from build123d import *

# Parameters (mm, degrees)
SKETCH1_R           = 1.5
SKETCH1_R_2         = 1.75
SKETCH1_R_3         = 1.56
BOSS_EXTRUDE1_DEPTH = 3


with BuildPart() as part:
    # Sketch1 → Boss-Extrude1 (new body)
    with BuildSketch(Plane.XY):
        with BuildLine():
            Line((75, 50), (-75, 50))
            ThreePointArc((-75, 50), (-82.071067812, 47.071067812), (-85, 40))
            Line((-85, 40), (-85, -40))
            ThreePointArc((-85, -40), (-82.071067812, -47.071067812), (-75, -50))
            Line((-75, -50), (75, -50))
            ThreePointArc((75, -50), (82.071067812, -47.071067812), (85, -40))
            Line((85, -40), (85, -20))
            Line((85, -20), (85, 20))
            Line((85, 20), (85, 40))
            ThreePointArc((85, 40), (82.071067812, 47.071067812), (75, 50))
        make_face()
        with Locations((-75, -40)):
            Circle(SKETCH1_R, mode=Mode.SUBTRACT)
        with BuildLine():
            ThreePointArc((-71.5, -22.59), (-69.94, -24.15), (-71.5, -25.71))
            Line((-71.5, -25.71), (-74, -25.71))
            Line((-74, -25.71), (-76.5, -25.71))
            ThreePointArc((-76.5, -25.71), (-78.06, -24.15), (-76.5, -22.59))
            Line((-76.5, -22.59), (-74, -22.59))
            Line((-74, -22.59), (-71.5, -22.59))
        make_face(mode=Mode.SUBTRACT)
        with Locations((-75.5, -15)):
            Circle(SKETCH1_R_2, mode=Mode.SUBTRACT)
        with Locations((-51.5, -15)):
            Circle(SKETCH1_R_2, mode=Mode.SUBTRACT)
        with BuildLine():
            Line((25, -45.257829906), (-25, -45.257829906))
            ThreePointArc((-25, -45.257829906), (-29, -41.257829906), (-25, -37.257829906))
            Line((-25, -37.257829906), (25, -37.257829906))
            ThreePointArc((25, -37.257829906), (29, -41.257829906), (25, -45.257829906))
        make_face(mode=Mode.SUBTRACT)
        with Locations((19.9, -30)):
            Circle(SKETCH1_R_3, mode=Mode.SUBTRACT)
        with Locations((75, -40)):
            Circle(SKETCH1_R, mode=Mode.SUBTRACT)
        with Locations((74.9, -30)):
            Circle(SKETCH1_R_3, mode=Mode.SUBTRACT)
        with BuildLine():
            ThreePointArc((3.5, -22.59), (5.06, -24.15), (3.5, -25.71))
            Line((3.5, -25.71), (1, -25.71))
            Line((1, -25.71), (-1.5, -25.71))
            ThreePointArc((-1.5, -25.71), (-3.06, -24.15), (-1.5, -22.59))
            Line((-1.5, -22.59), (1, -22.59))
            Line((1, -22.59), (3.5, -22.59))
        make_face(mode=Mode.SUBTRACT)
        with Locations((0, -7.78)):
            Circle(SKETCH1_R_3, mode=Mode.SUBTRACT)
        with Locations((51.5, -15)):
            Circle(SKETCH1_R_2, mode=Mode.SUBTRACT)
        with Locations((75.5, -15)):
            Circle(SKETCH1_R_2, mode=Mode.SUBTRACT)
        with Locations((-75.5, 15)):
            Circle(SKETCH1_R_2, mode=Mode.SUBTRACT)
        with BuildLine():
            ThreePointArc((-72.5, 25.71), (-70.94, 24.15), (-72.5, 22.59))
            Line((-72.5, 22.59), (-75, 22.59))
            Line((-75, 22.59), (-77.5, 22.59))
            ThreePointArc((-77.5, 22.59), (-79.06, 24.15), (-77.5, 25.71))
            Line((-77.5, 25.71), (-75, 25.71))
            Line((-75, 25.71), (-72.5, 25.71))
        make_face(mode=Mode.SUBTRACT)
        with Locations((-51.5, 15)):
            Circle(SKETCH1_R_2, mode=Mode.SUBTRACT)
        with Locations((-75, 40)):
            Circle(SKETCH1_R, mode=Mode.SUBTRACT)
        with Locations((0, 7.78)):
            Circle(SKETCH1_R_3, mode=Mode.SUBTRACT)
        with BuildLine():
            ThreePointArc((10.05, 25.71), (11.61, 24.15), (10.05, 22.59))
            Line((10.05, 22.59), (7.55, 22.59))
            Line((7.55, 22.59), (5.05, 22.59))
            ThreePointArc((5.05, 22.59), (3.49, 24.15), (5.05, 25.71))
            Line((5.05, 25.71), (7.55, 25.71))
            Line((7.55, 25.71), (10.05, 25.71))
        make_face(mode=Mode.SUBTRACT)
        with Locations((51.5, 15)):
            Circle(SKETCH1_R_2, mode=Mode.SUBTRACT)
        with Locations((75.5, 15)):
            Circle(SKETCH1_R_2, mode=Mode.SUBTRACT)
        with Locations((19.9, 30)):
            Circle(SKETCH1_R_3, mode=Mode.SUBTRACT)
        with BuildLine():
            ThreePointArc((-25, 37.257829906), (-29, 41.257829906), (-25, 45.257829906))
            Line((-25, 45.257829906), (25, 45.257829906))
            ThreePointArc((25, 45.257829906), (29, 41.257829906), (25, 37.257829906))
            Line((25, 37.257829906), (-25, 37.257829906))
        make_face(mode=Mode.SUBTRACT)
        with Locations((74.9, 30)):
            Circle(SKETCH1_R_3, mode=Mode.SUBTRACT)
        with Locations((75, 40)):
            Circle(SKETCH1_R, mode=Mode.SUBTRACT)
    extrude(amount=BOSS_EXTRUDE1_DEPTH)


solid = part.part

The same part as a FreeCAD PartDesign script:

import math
import FreeCAD as App
import Part
import Sketcher
from FreeCAD import Vector

doc = App.newDocument("Part")
body = doc.addObject("PartDesign::Body", "Body")

# Sketch on XY plane
sketch1 = body.newObject("Sketcher::SketchObject", "Sketch")
sketch1.AttachmentSupport = (doc.getObject("XY_Plane"), [""])
sketch1.MapMode = "FlatFace"
sketch1.addGeometry(Part.LineSegment(Vector(75, 50, 0), Vector(-75, 50, 0)), False)
sketch1.addGeometry(Part.ArcOfCircle(Part.Circle(Vector(-75, 40, 0), Vector(0, 0, 1), 10), math.radians(90), math.radians(180)), False)
sketch1.addGeometry(Part.LineSegment(Vector(-85, 40, 0), Vector(-85, -40, 0)), False)
sketch1.addGeometry(Part.ArcOfCircle(Part.Circle(Vector(-75, -40, 0), Vector(0, 0, 1), 10), math.radians(180), math.radians(270)), False)
sketch1.addGeometry(Part.LineSegment(Vector(-75, -50, 0), Vector(75, -50, 0)), False)
sketch1.addGeometry(Part.ArcOfCircle(Part.Circle(Vector(75, -40, 0), Vector(0, 0, 1), 10), math.radians(-90), math.radians(0)), False)
sketch1.addGeometry(Part.LineSegment(Vector(85, -40, 0), Vector(85, 40, 0)), False)
sketch1.addGeometry(Part.ArcOfCircle(Part.Circle(Vector(75, 40, 0), Vector(0, 0, 1), 10), math.radians(0), math.radians(90)), False)
sketch1.addGeometry(Part.Circle(Vector(-75, -40, 0), Vector(0, 0, 1), 1.5), False)
sketch1.addGeometry(Part.LineSegment(Vector(-76.5, -22.6, 0), Vector(-71.5, -22.6, 0)), False)
sketch1.addGeometry(Part.ArcOfCircle(Part.Circle(Vector(-71.5, -24.1, 0), Vector(0, 0, 1), 1.6), math.radians(-90), math.radians(90)), False)
sketch1.addGeometry(Part.LineSegment(Vector(-71.5, -25.7, 0), Vector(-76.5, -25.7, 0)), False)
sketch1.addGeometry(Part.ArcOfCircle(Part.Circle(Vector(-76.5, -24.1, 0), Vector(0, 0, 1), 1.6), math.radians(90), math.radians(270)), False)
sketch1.addGeometry(Part.Circle(Vector(-75.5, -15, 0), Vector(0, 0, 1), 1.8), False)
sketch1.addGeometry(Part.Circle(Vector(-51.5, -15, 0), Vector(0, 0, 1), 1.8), False)
sketch1.addGeometry(Part.ArcOfCircle(Part.Circle(Vector(25, -41.3, 0), Vector(0, 0, 1), 4), math.radians(-90), math.radians(90)), False)
sketch1.addGeometry(Part.LineSegment(Vector(25, -45.3, 0), Vector(-25, -45.3, 0)), False)
sketch1.addGeometry(Part.ArcOfCircle(Part.Circle(Vector(-25, -41.3, 0), Vector(0, 0, 1), 4), math.radians(90), math.radians(270)), False)
sketch1.addGeometry(Part.LineSegment(Vector(-25, -37.3, 0), Vector(25, -37.3, 0)), False)
sketch1.addGeometry(Part.LineSegment(Vector(-1.5, -22.6, 0), Vector(3.5, -22.6, 0)), False)
sketch1.addGeometry(Part.ArcOfCircle(Part.Circle(Vector(3.5, -24.1, 0), Vector(0, 0, 1), 1.6), math.radians(-90), math.radians(90)), False)
sketch1.addGeometry(Part.LineSegment(Vector(3.5, -25.7, 0), Vector(-1.5, -25.7, 0)), False)
sketch1.addGeometry(Part.ArcOfCircle(Part.Circle(Vector(-1.5, -24.1, 0), Vector(0, 0, 1), 1.6), math.radians(90), math.radians(270)), False)
sketch1.addGeometry(Part.Circle(Vector(19.9, -30, 0), Vector(0, 0, 1), 1.6), False)
sketch1.addGeometry(Part.Circle(Vector(75, -40, 0), Vector(0, 0, 1), 1.5), False)
sketch1.addGeometry(Part.Circle(Vector(74.9, -30, 0), Vector(0, 0, 1), 1.6), False)
sketch1.addGeometry(Part.Circle(Vector(0, -7.8, 0), Vector(0, 0, 1), 1.6), False)
sketch1.addGeometry(Part.Circle(Vector(51.5, -15, 0), Vector(0, 0, 1), 1.8), False)
sketch1.addGeometry(Part.Circle(Vector(75.5, -15, 0), Vector(0, 0, 1), 1.8), False)
sketch1.addGeometry(Part.Circle(Vector(-75.5, 15, 0), Vector(0, 0, 1), 1.8), False)
sketch1.addGeometry(Part.Circle(Vector(-51.5, 15, 0), Vector(0, 0, 1), 1.8), False)
sketch1.addGeometry(Part.LineSegment(Vector(-77.5, 25.7, 0), Vector(-72.5, 25.7, 0)), False)
sketch1.addGeometry(Part.ArcOfCircle(Part.Circle(Vector(-72.5, 24.1, 0), Vector(0, 0, 1), 1.6), math.radians(-90), math.radians(90)), False)
sketch1.addGeometry(Part.LineSegment(Vector(-72.5, 22.6, 0), Vector(-77.5, 22.6, 0)), False)
sketch1.addGeometry(Part.ArcOfCircle(Part.Circle(Vector(-77.5, 24.1, 0), Vector(0, 0, 1), 1.6), math.radians(90), math.radians(270)), False)
sketch1.addGeometry(Part.Circle(Vector(-75, 40, 0), Vector(0, 0, 1), 1.5), False)
sketch1.addGeometry(Part.Circle(Vector(0, 7.8, 0), Vector(0, 0, 1), 1.6), False)
sketch1.addGeometry(Part.Circle(Vector(51.5, 15, 0), Vector(0, 0, 1), 1.8), False)
sketch1.addGeometry(Part.Circle(Vector(75.5, 15, 0), Vector(0, 0, 1), 1.8), False)
sketch1.addGeometry(Part.LineSegment(Vector(5, 25.7, 0), Vector(10.1, 25.7, 0)), False)
sketch1.addGeometry(Part.ArcOfCircle(Part.Circle(Vector(10.1, 24.1, 0), Vector(0, 0, 1), 1.6), math.radians(-90), math.radians(90)), False)
sketch1.addGeometry(Part.LineSegment(Vector(10.1, 22.6, 0), Vector(5, 22.6, 0)), False)
sketch1.addGeometry(Part.ArcOfCircle(Part.Circle(Vector(5, 24.1, 0), Vector(0, 0, 1), 1.6), math.radians(90), math.radians(270)), False)
sketch1.addGeometry(Part.Circle(Vector(19.9, 30, 0), Vector(0, 0, 1), 1.6), False)
sketch1.addGeometry(Part.LineSegment(Vector(25, 37.3, 0), Vector(-25, 37.3, 0)), False)
sketch1.addGeometry(Part.ArcOfCircle(Part.Circle(Vector(-25, 41.3, 0), Vector(0, 0, 1), 4), math.radians(90), math.radians(270)), False)
sketch1.addGeometry(Part.LineSegment(Vector(-25, 45.3, 0), Vector(25, 45.3, 0)), False)
sketch1.addGeometry(Part.ArcOfCircle(Part.Circle(Vector(25, 41.3, 0), Vector(0, 0, 1), 4), math.radians(-90), math.radians(90)), False)
sketch1.addGeometry(Part.Circle(Vector(74.9, 30, 0), Vector(0, 0, 1), 1.6), False)
sketch1.addGeometry(Part.Circle(Vector(75, 40, 0), Vector(0, 0, 1), 1.5), False)
sketch1.addConstraint(Sketcher.Constraint("Tangent", 0, 2, 1, 1))
sketch1.addConstraint(Sketcher.Constraint("Tangent", 1, 2, 2, 1))
sketch1.addConstraint(Sketcher.Constraint("Tangent", 2, 2, 3, 1))
sketch1.addConstraint(Sketcher.Constraint("Tangent", 3, 2, 4, 1))
sketch1.addConstraint(Sketcher.Constraint("Tangent", 4, 2, 5, 1))
sketch1.addConstraint(Sketcher.Constraint("Tangent", 5, 2, 6, 1))
sketch1.addConstraint(Sketcher.Constraint("Tangent", 6, 2, 7, 1))
sketch1.addConstraint(Sketcher.Constraint("Tangent", 7, 2, 0, 1))
sketch1.addConstraint(Sketcher.Constraint("Tangent", 9, 2, 10, 2))
sketch1.addConstraint(Sketcher.Constraint("Tangent", 10, 1, 11, 1))
sketch1.addConstraint(Sketcher.Constraint("Tangent", 11, 2, 12, 2))
sketch1.addConstraint(Sketcher.Constraint("Tangent", 12, 1, 9, 1))
sketch1.addConstraint(Sketcher.Constraint("Tangent", 15, 1, 16, 1))
sketch1.addConstraint(Sketcher.Constraint("Tangent", 16, 2, 17, 2))
sketch1.addConstraint(Sketcher.Constraint("Tangent", 17, 1, 18, 1))
sketch1.addConstraint(Sketcher.Constraint("Tangent", 18, 2, 15, 2))
sketch1.addConstraint(Sketcher.Constraint("Tangent", 19, 2, 20, 2))
sketch1.addConstraint(Sketcher.Constraint("Tangent", 20, 1, 21, 1))
sketch1.addConstraint(Sketcher.Constraint("Tangent", 21, 2, 22, 2))
sketch1.addConstraint(Sketcher.Constraint("Tangent", 22, 1, 19, 1))
sketch1.addConstraint(Sketcher.Constraint("Tangent", 31, 2, 32, 2))
sketch1.addConstraint(Sketcher.Constraint("Tangent", 32, 1, 33, 1))
sketch1.addConstraint(Sketcher.Constraint("Tangent", 33, 2, 34, 2))
sketch1.addConstraint(Sketcher.Constraint("Tangent", 34, 1, 31, 1))
sketch1.addConstraint(Sketcher.Constraint("Tangent", 39, 2, 40, 2))
sketch1.addConstraint(Sketcher.Constraint("Tangent", 40, 1, 41, 1))
sketch1.addConstraint(Sketcher.Constraint("Tangent", 41, 2, 42, 2))
sketch1.addConstraint(Sketcher.Constraint("Tangent", 42, 1, 39, 1))
sketch1.addConstraint(Sketcher.Constraint("Tangent", 44, 2, 45, 2))
sketch1.addConstraint(Sketcher.Constraint("Tangent", 45, 1, 46, 1))
sketch1.addConstraint(Sketcher.Constraint("Tangent", 46, 2, 47, 2))
sketch1.addConstraint(Sketcher.Constraint("Tangent", 47, 1, 44, 1))
sketch1.addConstraint(Sketcher.Constraint("Horizontal", 0))
sketch1.addConstraint(Sketcher.Constraint("Vertical", 2))
sketch1.addConstraint(Sketcher.Constraint("Horizontal", 4))
sketch1.addConstraint(Sketcher.Constraint("Vertical", 6))
sketch1.addConstraint(Sketcher.Constraint("Horizontal", 9))
sketch1.addConstraint(Sketcher.Constraint("Horizontal", 11))
sketch1.addConstraint(Sketcher.Constraint("Horizontal", 16))
sketch1.addConstraint(Sketcher.Constraint("Horizontal", 18))
sketch1.addConstraint(Sketcher.Constraint("Horizontal", 19))
sketch1.addConstraint(Sketcher.Constraint("Horizontal", 21))
sketch1.addConstraint(Sketcher.Constraint("Horizontal", 31))
sketch1.addConstraint(Sketcher.Constraint("Horizontal", 33))
sketch1.addConstraint(Sketcher.Constraint("Horizontal", 39))
sketch1.addConstraint(Sketcher.Constraint("Horizontal", 41))
sketch1.addConstraint(Sketcher.Constraint("Horizontal", 44))
sketch1.addConstraint(Sketcher.Constraint("Horizontal", 46))
sketch1.addConstraint(Sketcher.Constraint("Coincident", 8, 3, 3, 3))
sketch1.addConstraint(Sketcher.Constraint("Coincident", 24, 3, 5, 3))
sketch1.addConstraint(Sketcher.Constraint("Coincident", 35, 3, 1, 3))
sketch1.addConstraint(Sketcher.Constraint("Coincident", 49, 3, 7, 3))
sketch1.addConstraint(Sketcher.Constraint("Equal", 1, 3))
sketch1.addConstraint(Sketcher.Constraint("Equal", 3, 5))
sketch1.addConstraint(Sketcher.Constraint("Equal", 5, 7))
sketch1.addConstraint(Sketcher.Constraint("Equal", 13, 14))
sketch1.addConstraint(Sketcher.Constraint("Equal", 12, 20))
sketch1.addConstraint(Sketcher.Constraint("Equal", 22, 23))
sketch1.addConstraint(Sketcher.Constraint("Equal", 8, 24))
sketch1.addConstraint(Sketcher.Constraint("Equal", 23, 25))
sketch1.addConstraint(Sketcher.Constraint("Equal", 25, 26))
sketch1.addConstraint(Sketcher.Constraint("Equal", 14, 27))
sketch1.addConstraint(Sketcher.Constraint("Equal", 27, 28))
sketch1.addConstraint(Sketcher.Constraint("Equal", 28, 29))
sketch1.addConstraint(Sketcher.Constraint("Equal", 29, 30))
sketch1.addConstraint(Sketcher.Constraint("Equal", 26, 32))
sketch1.addConstraint(Sketcher.Constraint("Equal", 24, 35))
sketch1.addConstraint(Sketcher.Constraint("Equal", 34, 36))
sketch1.addConstraint(Sketcher.Constraint("Equal", 30, 37))
sketch1.addConstraint(Sketcher.Constraint("Equal", 37, 38))
sketch1.addConstraint(Sketcher.Constraint("Equal", 36, 40))
sketch1.addConstraint(Sketcher.Constraint("Equal", 42, 43))
sketch1.addConstraint(Sketcher.Constraint("Equal", 17, 45))
sketch1.addConstraint(Sketcher.Constraint("Equal", 43, 48))
sketch1.addConstraint(Sketcher.Constraint("Equal", 35, 49))
sketch1.addConstraint(Sketcher.Constraint("Symmetric", 1, 3, 5, 3, -1, 1))
sketch1.addConstraint(Sketcher.Constraint("Symmetric", 28, 3, 29, 3, -1, 1))
sketch1.addConstraint(Sketcher.Constraint("Symmetric", 27, 3, 30, 3, -1, 1))
sketch1.addConstraint(Sketcher.Constraint("Symmetric", 26, 3, 36, 3, -1, 1))
sketch1.addConstraint(Sketcher.Constraint("Symmetric", 14, 3, 37, 3, -1, 1))
sketch1.addConstraint(Sketcher.Constraint("Symmetric", 13, 3, 38, 3, -1, 1))
sketch1.addConstraint(Sketcher.Constraint("Symmetric", 15, 3, 45, 3, -1, 1))
sketch1.addConstraint(Sketcher.Constraint("Symmetric", 14, 3, 27, 3, -2))
sketch1.addConstraint(Sketcher.Constraint("Symmetric", 13, 3, 28, 3, -2))
sketch1.addConstraint(Sketcher.Constraint("Symmetric", 23, 3, 43, 3, -1))
sketch1.addConstraint(Sketcher.Constraint("Symmetric", 25, 3, 48, 3, -1))
sketch1.addConstraint(Sketcher.Constraint("PointOnObject", 26, 3, -2))
sketch1.addConstraint(Sketcher.Constraint("Horizontal", 13, 3, 14, 3))
sketch1.addConstraint(Sketcher.Constraint("Horizontal", 12, 3, 20, 3))
sketch1.addConstraint(Sketcher.Constraint("Horizontal", 23, 3, 25, 3))
sketch1.addConstraint(Sketcher.Constraint("Horizontal", 34, 3, 40, 3))
sketch1.addConstraint(Sketcher.Constraint("Vertical", 17, 3, 45, 3))
sketch1.addConstraint(Sketcher.Constraint("Vertical", 15, 3, 47, 3))
sketch1.addConstraint(Sketcher.Constraint("Equal", 11, 19))
sketch1.addConstraint(Sketcher.Constraint("Equal", 21, 31))
sketch1.addConstraint(Sketcher.Constraint("Equal", 33, 39))
sketch1.addConstraint(Sketcher.Constraint("Diameter", 8, 3.0))
sketch1.addConstraint(Sketcher.Constraint("Radius", 1, 10.0))
sketch1.addConstraint(Sketcher.Constraint("Radius", 15, 4.0))
sketch1.addConstraint(Sketcher.Constraint("Diameter", 13, 3.5))
sketch1.addConstraint(Sketcher.Constraint("Diameter", 23, 3.12))
sketch1.addConstraint(Sketcher.Constraint("DistanceX", 0, 2, 0, 1, 150.0))
sketch1.addConstraint(Sketcher.Constraint("DistanceX", 9, 1, 9, 2, 5.0))
sketch1.addConstraint(Sketcher.Constraint("DistanceX", 16, 2, 16, 1, 50.0))
sketch1.addConstraint(Sketcher.Constraint("DistanceY", 2, 2, 2, 1, 80.0))
sketch1.addConstraint(Sketcher.Constraint("DistanceY", 13, 3, -1, 1, 15.0))
sketch1.addConstraint(Sketcher.Constraint("DistanceY", 23, 3, -1, 1, 30.0))
sketch1.addConstraint(Sketcher.Constraint("DistanceX", 10, 3, -1, 1, 71.5))
sketch1.addConstraint(Sketcher.Constraint("DistanceX", 13, 3, -1, 1, 75.5))
sketch1.addConstraint(Sketcher.Constraint("DistanceX", 14, 3, -1, 1, 51.5))
sketch1.addConstraint(Sketcher.Constraint("DistanceX", -1, 1, 20, 3, 3.5))
sketch1.addConstraint(Sketcher.Constraint("DistanceX", -1, 1, 23, 3, 19.9))
sketch1.addConstraint(Sketcher.Constraint("DistanceX", -1, 1, 25, 3, 74.9))
sketch1.addConstraint(Sketcher.Constraint("DistanceX", 32, 3, -1, 1, 72.5))
sketch1.addConstraint(Sketcher.Constraint("DistanceY", 10, 3, -1, 1, 24.15))
sketch1.addConstraint(Sketcher.Constraint("DistanceY", 26, 3, -1, 1, 7.78))
sketch1.addConstraint(Sketcher.Constraint("DistanceY", -1, 1, 32, 3, 24.15))
sketch1.addConstraint(Sketcher.Constraint("DistanceX", -1, 1, 40, 3, 10.05))
sketch1.addConstraint(Sketcher.Constraint("DistanceY", 15, 3, -1, 1, 41.25783))
pad1 = body.newObject("PartDesign::Pad", "Pad")
pad1.Profile = sketch1
pad1.Length = 3

doc.recompute()
